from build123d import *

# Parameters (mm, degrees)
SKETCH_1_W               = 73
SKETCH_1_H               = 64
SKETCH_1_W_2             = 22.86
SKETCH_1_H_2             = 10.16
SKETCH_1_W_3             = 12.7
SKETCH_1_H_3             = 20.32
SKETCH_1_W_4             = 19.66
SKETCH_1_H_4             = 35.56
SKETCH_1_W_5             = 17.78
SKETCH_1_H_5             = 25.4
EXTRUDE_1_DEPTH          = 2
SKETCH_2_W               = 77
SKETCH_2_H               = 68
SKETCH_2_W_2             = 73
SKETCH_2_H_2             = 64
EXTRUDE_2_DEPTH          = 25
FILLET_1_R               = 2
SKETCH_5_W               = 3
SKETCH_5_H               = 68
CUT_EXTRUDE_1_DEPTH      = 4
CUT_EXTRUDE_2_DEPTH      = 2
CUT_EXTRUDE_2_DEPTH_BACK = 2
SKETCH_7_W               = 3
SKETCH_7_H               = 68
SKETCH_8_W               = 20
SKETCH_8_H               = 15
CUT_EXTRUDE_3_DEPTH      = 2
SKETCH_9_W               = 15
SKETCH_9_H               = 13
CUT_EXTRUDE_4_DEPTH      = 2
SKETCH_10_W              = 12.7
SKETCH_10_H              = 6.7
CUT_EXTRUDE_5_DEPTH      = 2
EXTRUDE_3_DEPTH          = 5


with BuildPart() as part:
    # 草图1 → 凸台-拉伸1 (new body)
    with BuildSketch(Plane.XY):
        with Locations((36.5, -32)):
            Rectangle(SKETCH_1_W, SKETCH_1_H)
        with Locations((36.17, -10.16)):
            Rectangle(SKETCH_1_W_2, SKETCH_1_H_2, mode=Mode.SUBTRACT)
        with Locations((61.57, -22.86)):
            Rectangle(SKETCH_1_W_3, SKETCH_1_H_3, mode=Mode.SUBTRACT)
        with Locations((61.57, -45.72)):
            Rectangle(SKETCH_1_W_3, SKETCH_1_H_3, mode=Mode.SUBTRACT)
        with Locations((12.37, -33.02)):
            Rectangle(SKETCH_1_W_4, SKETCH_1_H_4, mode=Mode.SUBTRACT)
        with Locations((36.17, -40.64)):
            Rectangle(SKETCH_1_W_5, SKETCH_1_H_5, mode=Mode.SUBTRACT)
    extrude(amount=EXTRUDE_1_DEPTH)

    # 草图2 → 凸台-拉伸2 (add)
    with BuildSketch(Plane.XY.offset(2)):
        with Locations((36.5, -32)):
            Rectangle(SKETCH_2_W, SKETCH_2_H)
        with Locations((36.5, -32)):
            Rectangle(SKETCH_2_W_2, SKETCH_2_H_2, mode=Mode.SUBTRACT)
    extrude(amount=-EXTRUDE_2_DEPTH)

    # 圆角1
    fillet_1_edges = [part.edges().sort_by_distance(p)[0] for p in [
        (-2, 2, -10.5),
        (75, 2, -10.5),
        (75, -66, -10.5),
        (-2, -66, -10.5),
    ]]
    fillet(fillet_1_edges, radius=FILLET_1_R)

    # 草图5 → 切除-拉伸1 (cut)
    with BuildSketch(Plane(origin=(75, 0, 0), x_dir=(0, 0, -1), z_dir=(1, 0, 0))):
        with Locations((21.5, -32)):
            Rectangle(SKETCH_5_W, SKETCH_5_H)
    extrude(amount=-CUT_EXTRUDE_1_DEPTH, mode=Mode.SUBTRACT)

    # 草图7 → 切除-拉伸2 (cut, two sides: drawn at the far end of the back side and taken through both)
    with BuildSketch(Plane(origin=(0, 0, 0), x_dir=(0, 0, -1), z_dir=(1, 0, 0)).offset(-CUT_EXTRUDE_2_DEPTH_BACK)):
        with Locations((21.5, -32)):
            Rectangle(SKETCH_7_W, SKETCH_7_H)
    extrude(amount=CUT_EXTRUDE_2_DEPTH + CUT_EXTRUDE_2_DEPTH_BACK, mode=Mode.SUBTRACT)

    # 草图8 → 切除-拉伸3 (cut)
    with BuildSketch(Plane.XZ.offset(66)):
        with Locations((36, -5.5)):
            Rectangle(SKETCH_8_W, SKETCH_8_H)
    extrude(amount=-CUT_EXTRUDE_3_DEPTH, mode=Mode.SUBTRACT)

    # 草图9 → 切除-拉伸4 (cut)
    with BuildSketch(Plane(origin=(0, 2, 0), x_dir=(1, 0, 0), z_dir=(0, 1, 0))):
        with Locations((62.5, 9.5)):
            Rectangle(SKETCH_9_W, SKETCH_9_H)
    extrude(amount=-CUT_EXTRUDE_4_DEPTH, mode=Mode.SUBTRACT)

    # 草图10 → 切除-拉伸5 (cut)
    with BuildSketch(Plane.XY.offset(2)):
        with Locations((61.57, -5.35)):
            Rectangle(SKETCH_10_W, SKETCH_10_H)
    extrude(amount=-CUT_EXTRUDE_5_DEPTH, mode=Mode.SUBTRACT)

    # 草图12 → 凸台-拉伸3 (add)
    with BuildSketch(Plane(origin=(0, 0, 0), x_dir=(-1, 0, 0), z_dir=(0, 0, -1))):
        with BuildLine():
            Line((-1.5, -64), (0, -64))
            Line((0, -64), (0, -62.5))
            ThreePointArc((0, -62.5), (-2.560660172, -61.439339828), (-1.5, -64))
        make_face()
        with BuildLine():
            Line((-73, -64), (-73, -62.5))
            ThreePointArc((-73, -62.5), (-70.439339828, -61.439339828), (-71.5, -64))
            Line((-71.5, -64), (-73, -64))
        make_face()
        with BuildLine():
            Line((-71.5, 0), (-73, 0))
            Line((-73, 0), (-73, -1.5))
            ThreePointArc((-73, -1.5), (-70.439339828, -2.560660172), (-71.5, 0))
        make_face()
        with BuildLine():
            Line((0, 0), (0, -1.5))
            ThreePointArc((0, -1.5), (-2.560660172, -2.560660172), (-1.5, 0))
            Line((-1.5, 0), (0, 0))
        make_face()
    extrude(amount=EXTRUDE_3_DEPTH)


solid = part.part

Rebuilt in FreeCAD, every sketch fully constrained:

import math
import FreeCAD as App
import Part
import Sketcher
Q = App.Units.Quantity


def edges_at(feature, points):
    """Names of the edges that pass closest to the given points."""
    edges = feature.Shape.Edges
    near = lambda p: min(range(len(edges)), key=lambda i: edges[i].distToShape(Part.Vertex(*p))[0])
    return sorted({f"Edge{near(p) + 1}" for p in points})


def add_polygon(sketch, points):
    """Adds a closed chain of lines whose ends are joined by coincident constraints."""
    first, n = sketch.GeometryCount, len(points)
    for a, b in zip(points, points[1:] + points[:1]):
        sketch.addGeometry(Part.LineSegment(App.Vector(*a, 0), App.Vector(*b, 0)), False)
    for i in range(n):
        sketch.addConstraint(Sketcher.Constraint("Coincident", first + i, 2, first + (i + 1) % n, 1))

doc = App.newDocument("Part")
body = doc.addObject("PartDesign::Body", "Body")

sketch1 = doc.addObject("Sketcher::SketchObject", "Sketch")
body.addObject(sketch1)
sketch1.AttachmentSupport = (doc.XY_Plane, [""])
sketch1.MapMode = "FlatFace"
add_polygon(sketch1, [(0, 0), (0, -64), (73, -64), (73, 0)])
add_polygon(sketch1, [(22, -51), (3, -51), (3, -15), (22, -15)])
add_polygon(sketch1, [(68, -56), (55, -56), (55, -36), (68, -36)])
add_polygon(sketch1, [(45, -53), (27, -53), (27, -28), (45, -28)])
add_polygon(sketch1, [(68, -33), (55, -33), (55, -13), (68, -13)])
add_polygon(sketch1, [(48, -15), (25, -15), (25, -5), (48, -5)])
sketch1.addConstraint([
    Sketcher.Constraint("Vertical", 0),
    Sketcher.Constraint("Horizontal", 1),
    Sketcher.Constraint("Vertical", 2),
    Sketcher.Constraint("Horizontal", 3),
    Sketcher.Constraint("Horizontal", 4),
    Sketcher.Constraint("Vertical", 5),
    Sketcher.Constraint("Horizontal", 6),
    Sketcher.Constraint("Vertical", 7),
    Sketcher.Constraint("Horizontal", 8),
    Sketcher.Constraint("Vertical", 9),
    Sketcher.Constraint("Horizontal", 10),
    Sketcher.Constraint("Vertical", 11),
    Sketcher.Constraint("Horizontal", 12),
    Sketcher.Constraint("Vertical", 13),
    Sketcher.Constraint("Horizontal", 14),
    Sketcher.Constraint("Vertical", 15),
    Sketcher.Constraint("Horizontal", 16),
    Sketcher.Constraint("Vertical", 17),
    Sketcher.Constraint("Horizontal", 18),
    Sketcher.Constraint("Vertical", 19),
    Sketcher.Constraint("Horizontal", 20),
    Sketcher.Constraint("Vertical", 21),
    Sketcher.Constraint("Horizontal", 22),
    Sketcher.Constraint("Vertical", 23),
    Sketcher.Constraint("Coincident", 3, 2, -1, 1),
    Sketcher.Constraint("Horizontal", 6, 2, 20, 2),
    Sketcher.Constraint("Vertical", 9, 2, 16, 2),
    Sketcher.Constraint("Vertical", 11, 2, 18, 2),
    Sketcher.Constraint("Equal", 11, 17),
    Sketcher.Constraint("DistanceX", 1, 1, 1, 2, Q("73 mm")),
    Sketcher.Constraint("DistanceY", 0, 2, 0, 1, Q("64 mm")),
    Sketcher.Constraint("DistanceX", 8, 2, 8, 1, Q("12.7 mm")),
    Sketcher.Constraint("DistanceY", 13, 1, 13, 2, Q("25.4 mm")),
    Sketcher.Constraint("DistanceX", 4, 2, 4, 1, Q("19.66 mm")),
    Sketcher.Constraint("DistanceX", 12, 2, 12, 1, Q("17.78 mm")),
    Sketcher.Constraint("DistanceX", 20, 2, 20, 1, Q("22.86 mm")),
    Sketcher.Constraint("DistanceY", 5, 1, 5, 2, Q("35.56 mm")),
    Sketcher.Constraint("DistanceY", 9, 1, 9, 2, Q("20.32 mm")),
    Sketcher.Constraint("DistanceY", 21, 1, 21, 2, Q("10.16 mm")),
    Sketcher.Constraint("DistanceY", 4, 2, -1, 1, Q("50.8 mm")),
    Sketcher.Constraint("DistanceX", -1, 1, 6, 2, Q("22.2 mm")),
    Sketcher.Constraint("DistanceY", 17, 2, -1, 1, Q("12.7 mm")),
    Sketcher.Constraint("DistanceX", -1, 1, 22, 2, Q("47.6 mm")),
    Sketcher.Constraint("DistanceY", 13, 2, 6, 2, Q("12.7 mm")),
    Sketcher.Constraint("DistanceX", -1, 1, 8, 2, Q("55.22 mm")),
    Sketcher.Constraint("DistanceY", 8, 2, -1, 1, Q("55.88 mm")),
    Sketcher.Constraint("DistanceX", -1, 1, 12, 2, Q("27.28 mm")),
])
pad1 = doc.addObject("PartDesign::Pad", "Pad")
body.addObject(pad1)
pad1.Profile = sketch1
pad1.Length = 2

sketch2 = doc.addObject("Sketcher::SketchObject", "Sketch001")
body.addObject(sketch2)
sketch2.AttachmentSupport = (doc.XY_Plane, [""])
sketch2.MapMode = "FlatFace"
sketch2.AttachmentOffset = App.Placement(App.Vector(0, 0, 2), App.Rotation())
add_polygon(sketch2, [(-2, 2), (-2, -66), (75, -66), (75, 2)])
add_polygon(sketch2, [(73, -64), (0, -64), (0, 0), (73, 0)])
sketch2.addConstraint([
    Sketcher.Constraint("Vertical", 0),
    Sketcher.Constraint("Horizontal", 1),
    Sketcher.Constraint("Vertical", 2),
    Sketcher.Constraint("Horizontal", 3),
    Sketcher.Constraint("Horizontal", 4),
    Sketcher.Constraint("Vertical", 5),
    Sketcher.Constraint("Horizontal", 6),
    Sketcher.Constraint("Vertical", 7),
    Sketcher.Constraint("Coincident", 5, 2, -1, 1),
    Sketcher.Constraint("DistanceX", 1, 1, 1, 2, Q("77 mm")),
    Sketcher.Constraint("DistanceX", 4, 2, 4, 1, Q("73 mm")),
    Sketcher.Constraint("DistanceY", 0, 2, 0, 1, Q("68 mm")),
    Sketcher.Constraint("DistanceY", 5, 1, 5, 2, Q("64 mm")),
    Sketcher.Constraint("DistanceX", 0, 2, -1, 1, Q("2 mm")),
    Sketcher.Constraint("DistanceY", 0, 2, -1, 1, Q("66 mm")),
])
pad2 = doc.addObject("PartDesign::Pad", "Pad001")
body.addObject(pad2)
pad2.Profile = sketch2
pad2.Length = 25
pad2.Reversed = True
doc.recompute()

fillet = doc.addObject("PartDesign::Fillet", "Fillet")
body.addObject(fillet)
fillet.Base = (pad2, edges_at(pad2, [
    (-2, 2, -10.5),
    (75, 2, -10.5),
    (75, -66, -10.5),
    (-2, -66, -10.5),
]))
fillet.Radius = 2

sketch3 = doc.addObject("Sketcher::SketchObject", "Sketch002")
body.addObject(sketch3)
sketch3.AttachmentSupport = (doc.YZ_Plane, [""])
sketch3.MapMode = "FlatFace"
sketch3.AttachmentOffset = App.Placement(App.Vector(0, 0, 75), App.Rotation())
add_polygon(sketch3, [(2, -20), (-66, -20), (-66, -23), (2, -23)])
sketch3.addConstraint([
    Sketcher.Constraint("Horizontal", 0),
    Sketcher.Constraint("Vertical", 1),
    Sketcher.Constraint("Horizontal", 2),
    Sketcher.Constraint("Vertical", 3),
    Sketcher.Constraint("DistanceX", 0, 2, 0, 1, Q("68 mm")),
    Sketcher.Constraint("DistanceY", 1, 2, 1, 1, Q("3 mm")),
    Sketcher.Constraint("DistanceX", 0, 2, -1, 1, Q("66 mm")),
    Sketcher.Constraint("DistanceY", 0, 2, -1, 1, Q("20 mm")),
])
pocket1 = doc.addObject("PartDesign::Pocket", "Pocket")
body.addObject(pocket1)
pocket1.Profile = sketch3
pocket1.Length = 4

sketch4 = doc.addObject("Sketcher::SketchObject", "Sketch003")
body.addObject(sketch4)
sketch4.AttachmentSupport = (doc.YZ_Plane, [""])
sketch4.MapMode = "FlatFace"
add_polygon(sketch4, [(2, -20), (-66, -20), (-66, -23), (2, -23)])
sketch4.addConstraint([
    Sketcher.Constraint("Horizontal", 0),
    Sketcher.Constraint("Vertical", 1),
    Sketcher.Constraint("Horizontal", 2),
    Sketcher.Constraint("Vertical", 3),
    Sketcher.Constraint("DistanceX", 0, 2, 0, 1, Q("68 mm")),
    Sketcher.Constraint("DistanceY", 1, 2, 1, 1, Q("3 mm")),
    Sketcher.Constraint("DistanceX", 0, 2, -1, 1, Q("66 mm")),
    Sketcher.Constraint("DistanceY", 0, 2, -1, 1, Q("20 mm")),
])
pocket2 = doc.addObject("PartDesign::Pocket", "Pocket001")
body.addObject(pocket2)
pocket2.Profile = sketch4
pocket2.Type = "TwoLengths"
pocket2.Length = 2
pocket2.Length2 = 2
pocket2.Reversed = True

sketch5 = doc.addObject("Sketcher::SketchObject", "Sketch004")
body.addObject(sketch5)
sketch5.AttachmentSupport = (doc.XZ_Plane, [""])
sketch5.MapMode = "FlatFace"
sketch5.AttachmentOffset = App.Placement(App.Vector(0, 0, 66), App.Rotation())
add_polygon(sketch5, [(26, 2), (26, -13), (46, -13), (46, 2)])
sketch5.addConstraint([
    Sketcher.Constraint("Vertical", 0),
    Sketcher.Constraint("Horizontal", 1),
    Sketcher.Constraint("Vertical", 2),
    Sketcher.Constraint("Horizontal", 3),
    Sketcher.Constraint("DistanceX", 1, 1, 1, 2, Q("20 mm")),
    Sketcher.Constraint("DistanceY", 0, 2, 0, 1, Q("15 mm")),
    Sketcher.Constraint("DistanceX", -1, 1, 0, 2, Q("26 mm")),
    Sketcher.Constraint("DistanceY", 0, 2, -1, 1, Q("13 mm")),
])
pocket3 = doc.addObject("PartDesign::Pocket", "Pocket002")
body.addObject(pocket3)
pocket3.Profile = sketch5
pocket3.Length = 2

sketch6 = doc.addObject("Sketcher::SketchObject", "Sketch005")
body.addObject(sketch6)
sketch6.AttachmentSupport = (doc.XZ_Plane, [""])
sketch6.MapMode = "FlatFace"
sketch6.AttachmentOffset = App.Placement(App.Vector(0, 0, -2), App.Rotation())
add_polygon(sketch6, [(55, -16), (55, -3), (70, -3), (70, -16)])
sketch6.addConstraint([
    Sketcher.Constraint("Vertical", 0),
    Sketcher.Constraint("Horizontal", 1),
    Sketcher.Constraint("Vertical", 2),
    Sketcher.Constraint("Horizontal", 3),
    Sketcher.Constraint("DistanceX", 1, 1, 1, 2, Q("15 mm")),
    Sketcher.Constraint("DistanceY", 0, 1, 0, 2, Q("13 mm")),
    Sketcher.Constraint("DistanceX", -1, 1, 0, 2, Q("55 mm")),
    Sketcher.Constraint("DistanceY", 0, 2, -1, 1, Q("3 mm")),
])
pocket4 = doc.addObject("PartDesign::Pocket", "Pocket003")
body.addObject(pocket4)
pocket4.Profile = sketch6
pocket4.Length = 2
pocket4.Reversed = True

sketch7 = doc.addObject("Sketcher::SketchObject", "Sketch006")
body.addObject(sketch7)
sketch7.AttachmentSupport = (doc.XY_Plane, [""])
sketch7.MapMode = "FlatFace"
sketch7.AttachmentOffset = App.Placement(App.Vector(0, 0, 2), App.Rotation())
add_polygon(sketch7, [(55, -2), (55, -9), (68, -9), (68, -2)])
sketch7.addConstraint([
    Sketcher.Constraint("Vertical", 0),
    Sketcher.Constraint("Horizontal", 1),
    Sketcher.Constraint("Vertical", 2),
    Sketcher.Constraint("Horizontal", 3),
    Sketcher.Constraint("DistanceX", 1, 1, 1, 2, Q("12.7 mm")),
    Sketcher.Constraint("DistanceY", 0, 2, 0, 1, Q("6.7 mm")),
    Sketcher.Constraint("DistanceY", 2, 2, -1, 1, Q("2 mm")),
    Sketcher.Constraint("DistanceX", -1, 1, 0, 2, Q("55.22 mm")),
])
pocket5 = doc.addObject("PartDesign::Pocket", "Pocket004")
body.addObject(pocket5)
pocket5.Profile = sketch7
pocket5.Length = 2

sketch8 = doc.addObject("Sketcher::SketchObject", "Sketch007")
body.addObject(sketch8)
sketch8.AttachmentSupport = (doc.XY_Plane, [""])
sketch8.MapMode = "FlatFace"
sketch8.addGeometry([
    Part.LineSegment(App.Vector(1.5, -64, 0), App.Vector(0, -64, 0)),
    Part.LineSegment(App.Vector(0, -64, 0), App.Vector(0, -62.5, 0)),
    Part.ArcOfCircle(Part.Circle(App.Vector(1.5, -62.5, 0), App.Vector(0, 0, 1), 1.5), math.radians(-90), math.radians(180)),
    Part.LineSegment(App.Vector(73, -62.5, 0), App.Vector(73, -64, 0)),
    Part.LineSegment(App.Vector(73, -64, 0), App.Vector(71.5, -64, 0)),
    Part.ArcOfCircle(Part.Circle(App.Vector(71.5, -62.5, 0), App.Vector(0, 0, 1), 1.5), math.radians(0), math.radians(270)),
    Part.LineSegment(App.Vector(71.5, 0, 0), App.Vector(73, 0, 0)),
    Part.LineSegment(App.Vector(73, 0, 0), App.Vector(73, -1.5, 0)),
    Part.ArcOfCircle(Part.Circle(App.Vector(71.5, -1.5, 0), App.Vector(0, 0, 1), 1.5), math.radians(90), math.radians(360)),
    Part.LineSegment(App.Vector(0, -1.5, 0), App.Vector(0, 0, 0)),
    Part.LineSegment(App.Vector(0, 0, 0), App.Vector(1.5, 0, 0)),
    Part.ArcOfCircle(Part.Circle(App.Vector(1.5, -1.5, 0), App.Vector(0, 0, 1), 1.5), math.radians(180), math.radians(450)),
], False)
sketch8.addConstraint([
    Sketcher.Constraint("Coincident", 0, 2, 1, 1),
    Sketcher.Constraint("Tangent", 1, 2, 2, 2),
    Sketcher.Constraint("Tangent", 2, 1, 0, 1),
    Sketcher.Constraint("Coincident", 3, 2, 4, 1),
    Sketcher.Constraint("Tangent", 4, 2, 5, 2),
    Sketcher.Constraint("Tangent", 5, 1, 3, 1),
    Sketcher.Constraint("Coincident", 6, 2, 7, 1),
    Sketcher.Constraint("Tangent", 7, 2, 8, 2),
    Sketcher.Constraint("Tangent", 8, 1, 6, 1),
    Sketcher.Constraint("Coincident", 9, 2, 10, 1),
    Sketcher.Constraint("Tangent", 10, 2, 11, 2),
    Sketcher.Constraint("Tangent", 11, 1, 9, 1),
    Sketcher.Constraint("Horizontal", 0),
    Sketcher.Constraint("Vertical", 1),
    Sketcher.Constraint("Vertical", 3),
    Sketcher.Constraint("Horizontal", 4),
    Sketcher.Constraint("Horizontal", 6),
    Sketcher.Constraint("Vertical", 7),
    Sketcher.Constraint("Vertical", 9),
    Sketcher.Constraint("Horizontal", 10),
    Sketcher.Constraint("Coincident", 9, 2, -1, 1),
    Sketcher.Constraint("Equal", 2, 5),
    Sketcher.Constraint("Equal", 5, 8),
    Sketcher.Constraint("Equal", 8, 11),
    Sketcher.Constraint("PointOnObject", 0, 2, -2),
    Sketcher.Constraint("PointOnObject", 6, 2, -1),
    Sketcher.Constraint("Horizontal", 2, 3, 5, 3),
    Sketcher.Constraint("Vertical", 5, 3, 8, 3),
    Sketcher.Constraint("Radius", 2, Q("1.5 mm")),
    Sketcher.Constraint("DistanceY", 0, 2, -1, 1, Q("64 mm")),
    Sketcher.Constraint("DistanceX", -1, 1, 3, 2, Q("73 mm")),
])
pad3 = doc.addObject("PartDesign::Pad", "Pad002")
body.addObject(pad3)
pad3.Profile = sketch8
pad3.Length = 5
pad3.Reversed = True

doc.recompute()
